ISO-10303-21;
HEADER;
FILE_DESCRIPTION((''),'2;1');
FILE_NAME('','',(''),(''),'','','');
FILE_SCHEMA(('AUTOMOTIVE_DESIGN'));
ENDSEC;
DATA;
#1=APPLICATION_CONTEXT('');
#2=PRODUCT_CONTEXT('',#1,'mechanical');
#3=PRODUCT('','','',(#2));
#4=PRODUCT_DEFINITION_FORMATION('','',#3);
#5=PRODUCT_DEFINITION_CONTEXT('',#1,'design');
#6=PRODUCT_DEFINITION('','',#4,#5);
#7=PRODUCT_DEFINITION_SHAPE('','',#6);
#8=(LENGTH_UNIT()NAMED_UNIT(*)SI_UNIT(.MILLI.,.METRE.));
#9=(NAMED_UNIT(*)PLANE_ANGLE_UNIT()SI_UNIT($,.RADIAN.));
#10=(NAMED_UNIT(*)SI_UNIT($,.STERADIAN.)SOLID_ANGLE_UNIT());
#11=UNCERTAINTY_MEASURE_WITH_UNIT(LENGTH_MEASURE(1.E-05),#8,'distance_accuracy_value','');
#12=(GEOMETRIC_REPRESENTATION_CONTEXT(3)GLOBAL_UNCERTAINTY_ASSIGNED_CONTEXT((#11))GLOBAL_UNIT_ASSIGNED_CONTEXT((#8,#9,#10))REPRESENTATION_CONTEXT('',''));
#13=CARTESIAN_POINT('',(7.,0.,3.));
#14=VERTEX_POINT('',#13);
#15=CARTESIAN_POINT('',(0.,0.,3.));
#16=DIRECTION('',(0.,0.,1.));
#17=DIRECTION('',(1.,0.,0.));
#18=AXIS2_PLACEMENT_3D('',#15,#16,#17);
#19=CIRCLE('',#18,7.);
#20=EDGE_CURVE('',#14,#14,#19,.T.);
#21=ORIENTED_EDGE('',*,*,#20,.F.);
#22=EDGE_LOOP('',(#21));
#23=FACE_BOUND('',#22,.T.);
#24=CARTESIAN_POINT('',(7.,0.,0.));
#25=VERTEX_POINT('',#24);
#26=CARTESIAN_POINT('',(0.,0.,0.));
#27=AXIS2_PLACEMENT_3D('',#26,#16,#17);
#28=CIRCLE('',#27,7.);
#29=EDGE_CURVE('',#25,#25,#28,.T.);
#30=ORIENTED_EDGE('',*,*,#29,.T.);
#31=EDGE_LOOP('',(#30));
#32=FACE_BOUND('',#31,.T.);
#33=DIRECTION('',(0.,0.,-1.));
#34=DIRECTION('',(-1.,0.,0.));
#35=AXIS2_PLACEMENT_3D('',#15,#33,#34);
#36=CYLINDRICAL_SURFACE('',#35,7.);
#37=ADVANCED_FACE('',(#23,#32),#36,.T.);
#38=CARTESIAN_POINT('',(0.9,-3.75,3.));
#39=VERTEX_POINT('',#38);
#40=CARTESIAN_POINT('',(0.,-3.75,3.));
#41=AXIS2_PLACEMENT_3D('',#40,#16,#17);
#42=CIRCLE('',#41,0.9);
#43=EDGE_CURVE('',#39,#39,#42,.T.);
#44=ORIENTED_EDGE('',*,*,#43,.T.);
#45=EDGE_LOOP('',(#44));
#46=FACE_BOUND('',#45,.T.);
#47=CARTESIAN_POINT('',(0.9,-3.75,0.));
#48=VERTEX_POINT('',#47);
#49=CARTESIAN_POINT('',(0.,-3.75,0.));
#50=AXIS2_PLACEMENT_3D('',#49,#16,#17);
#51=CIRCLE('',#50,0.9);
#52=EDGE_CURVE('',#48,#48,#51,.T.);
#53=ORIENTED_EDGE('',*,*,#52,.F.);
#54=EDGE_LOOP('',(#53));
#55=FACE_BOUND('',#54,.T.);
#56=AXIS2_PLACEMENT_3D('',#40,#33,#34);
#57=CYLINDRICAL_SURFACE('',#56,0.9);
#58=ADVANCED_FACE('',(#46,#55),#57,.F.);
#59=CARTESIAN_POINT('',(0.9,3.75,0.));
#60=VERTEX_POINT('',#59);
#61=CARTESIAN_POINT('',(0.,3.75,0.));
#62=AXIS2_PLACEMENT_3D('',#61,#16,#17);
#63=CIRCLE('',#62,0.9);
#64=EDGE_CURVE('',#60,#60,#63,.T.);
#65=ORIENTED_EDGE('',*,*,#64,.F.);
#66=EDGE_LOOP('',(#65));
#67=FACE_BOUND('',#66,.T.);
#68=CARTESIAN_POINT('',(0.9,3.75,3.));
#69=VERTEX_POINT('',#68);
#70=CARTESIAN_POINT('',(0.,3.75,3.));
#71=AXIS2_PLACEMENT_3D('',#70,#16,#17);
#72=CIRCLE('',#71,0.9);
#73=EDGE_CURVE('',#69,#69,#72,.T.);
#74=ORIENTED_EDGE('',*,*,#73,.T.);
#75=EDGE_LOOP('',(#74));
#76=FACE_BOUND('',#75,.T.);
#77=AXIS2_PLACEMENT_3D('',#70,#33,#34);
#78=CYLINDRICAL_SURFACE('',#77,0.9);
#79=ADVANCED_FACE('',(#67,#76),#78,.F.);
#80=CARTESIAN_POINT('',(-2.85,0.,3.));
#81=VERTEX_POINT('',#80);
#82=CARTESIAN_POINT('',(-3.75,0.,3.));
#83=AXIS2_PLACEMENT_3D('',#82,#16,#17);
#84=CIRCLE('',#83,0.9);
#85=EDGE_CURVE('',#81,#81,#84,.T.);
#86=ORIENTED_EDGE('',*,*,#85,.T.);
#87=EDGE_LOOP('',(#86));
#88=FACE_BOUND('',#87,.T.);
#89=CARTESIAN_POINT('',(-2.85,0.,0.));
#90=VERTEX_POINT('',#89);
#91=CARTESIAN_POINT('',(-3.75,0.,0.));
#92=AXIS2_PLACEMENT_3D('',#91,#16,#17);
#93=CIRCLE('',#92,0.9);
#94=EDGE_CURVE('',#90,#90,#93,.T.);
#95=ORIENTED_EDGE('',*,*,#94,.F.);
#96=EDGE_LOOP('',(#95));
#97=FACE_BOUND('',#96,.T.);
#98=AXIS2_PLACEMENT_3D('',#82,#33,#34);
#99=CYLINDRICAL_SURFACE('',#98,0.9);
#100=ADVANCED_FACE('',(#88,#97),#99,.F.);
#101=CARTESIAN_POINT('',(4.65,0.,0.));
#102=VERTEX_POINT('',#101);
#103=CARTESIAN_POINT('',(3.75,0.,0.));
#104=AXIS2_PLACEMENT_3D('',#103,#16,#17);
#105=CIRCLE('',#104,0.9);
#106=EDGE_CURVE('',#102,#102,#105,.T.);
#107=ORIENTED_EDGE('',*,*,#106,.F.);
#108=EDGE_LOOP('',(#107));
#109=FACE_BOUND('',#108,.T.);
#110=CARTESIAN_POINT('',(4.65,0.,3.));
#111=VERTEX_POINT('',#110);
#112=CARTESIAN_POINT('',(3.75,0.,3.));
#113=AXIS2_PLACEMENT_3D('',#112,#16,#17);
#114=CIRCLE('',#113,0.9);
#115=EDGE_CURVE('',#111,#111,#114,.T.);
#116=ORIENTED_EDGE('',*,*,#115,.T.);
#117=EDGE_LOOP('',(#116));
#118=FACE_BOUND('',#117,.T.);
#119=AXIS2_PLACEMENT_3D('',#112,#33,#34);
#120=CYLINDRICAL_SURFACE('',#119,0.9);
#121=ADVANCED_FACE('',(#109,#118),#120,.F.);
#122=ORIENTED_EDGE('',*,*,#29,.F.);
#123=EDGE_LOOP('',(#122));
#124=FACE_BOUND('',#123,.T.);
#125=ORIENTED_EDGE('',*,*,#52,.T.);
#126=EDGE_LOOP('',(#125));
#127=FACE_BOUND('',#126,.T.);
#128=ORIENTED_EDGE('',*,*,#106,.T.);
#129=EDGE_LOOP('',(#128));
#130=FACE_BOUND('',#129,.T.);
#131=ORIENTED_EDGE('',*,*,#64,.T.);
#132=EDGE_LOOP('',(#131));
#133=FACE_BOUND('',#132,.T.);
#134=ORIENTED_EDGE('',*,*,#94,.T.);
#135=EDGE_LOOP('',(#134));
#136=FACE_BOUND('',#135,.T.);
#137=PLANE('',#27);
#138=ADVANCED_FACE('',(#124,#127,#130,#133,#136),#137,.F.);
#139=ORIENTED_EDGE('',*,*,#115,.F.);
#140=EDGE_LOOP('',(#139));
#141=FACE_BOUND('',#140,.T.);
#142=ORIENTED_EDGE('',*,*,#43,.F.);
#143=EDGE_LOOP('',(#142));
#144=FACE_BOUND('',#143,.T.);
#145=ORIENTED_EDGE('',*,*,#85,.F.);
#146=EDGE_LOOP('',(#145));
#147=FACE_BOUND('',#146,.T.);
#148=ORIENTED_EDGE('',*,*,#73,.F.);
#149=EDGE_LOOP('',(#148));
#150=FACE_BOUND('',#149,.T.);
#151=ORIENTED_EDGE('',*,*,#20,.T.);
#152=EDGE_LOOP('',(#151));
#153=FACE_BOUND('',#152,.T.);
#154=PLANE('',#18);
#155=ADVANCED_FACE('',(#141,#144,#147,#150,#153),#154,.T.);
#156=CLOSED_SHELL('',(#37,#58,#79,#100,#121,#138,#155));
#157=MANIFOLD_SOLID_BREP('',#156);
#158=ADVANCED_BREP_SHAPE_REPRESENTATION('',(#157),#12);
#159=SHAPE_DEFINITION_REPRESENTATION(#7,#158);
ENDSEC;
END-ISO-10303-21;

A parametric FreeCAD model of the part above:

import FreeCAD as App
import Part
import Sketcher
from FreeCAD import Vector

doc = App.newDocument("Part")
body = doc.addObject("PartDesign::Body", "Body")

# Sketch on XY plane
sketch1 = doc.addObject("Sketcher::SketchObject", "Sketch")
body.addObject(sketch1)
sketch1.AttachmentSupport = (doc.XY_Plane, [""])
sketch1.MapMode = "FlatFace"
sketch1.addGeometry(Part.Circle(Vector(0, 0, 0), Vector(0, 0, 1), 7), False)
sketch1.addGeometry(Part.Circle(Vector(0, -3.8, 0), Vector(0, 0, 1), 0.9), False)
sketch1.addGeometry(Part.Circle(Vector(-3.8, 0, 0), Vector(0, 0, 1), 0.9), False)
sketch1.addGeometry(Part.Circle(Vector(3.8, 0, 0), Vector(0, 0, 1), 0.9), False)
sketch1.addGeometry(Part.Circle(Vector(0, 3.8, 0), Vector(0, 0, 1), 0.9), False)
sketch1.addConstraint(Sketcher.Constraint("Coincident", 0, 3, -1, 1))
sketch1.addConstraint(Sketcher.Constraint("Equal", 1, 2))
sketch1.addConstraint(Sketcher.Constraint("Equal", 2, 3))
sketch1.addConstraint(Sketcher.Constraint("Equal", 3, 4))
sketch1.addConstraint(Sketcher.Constraint("Symmetric", 2, 3, 3, 3, -1, 1))
sketch1.addConstraint(Sketcher.Constraint("Symmetric", 1, 3, 4, 3, -1, 1))
sketch1.addConstraint(Sketcher.Constraint("PointOnObject", 1, 3, -2))
sketch1.addConstraint(Sketcher.Constraint("PointOnObject", 2, 3, -1))
sketch1.addConstraint(Sketcher.Constraint("Diameter", 0, 14.0))
sketch1.addConstraint(Sketcher.Constraint("Diameter", 1, 1.8))
sketch1.addConstraint(Sketcher.Constraint("DistanceX", 2, 3, 3, 3, 7.5))
sketch1.addConstraint(Sketcher.Constraint("DistanceY", 1, 3, 4, 3, 7.5))
pad1 = doc.addObject("PartDesign::Pad", "Pad")
body.addObject(pad1)
pad1.Profile = sketch1
pad1.Length = 3

doc.recompute()
